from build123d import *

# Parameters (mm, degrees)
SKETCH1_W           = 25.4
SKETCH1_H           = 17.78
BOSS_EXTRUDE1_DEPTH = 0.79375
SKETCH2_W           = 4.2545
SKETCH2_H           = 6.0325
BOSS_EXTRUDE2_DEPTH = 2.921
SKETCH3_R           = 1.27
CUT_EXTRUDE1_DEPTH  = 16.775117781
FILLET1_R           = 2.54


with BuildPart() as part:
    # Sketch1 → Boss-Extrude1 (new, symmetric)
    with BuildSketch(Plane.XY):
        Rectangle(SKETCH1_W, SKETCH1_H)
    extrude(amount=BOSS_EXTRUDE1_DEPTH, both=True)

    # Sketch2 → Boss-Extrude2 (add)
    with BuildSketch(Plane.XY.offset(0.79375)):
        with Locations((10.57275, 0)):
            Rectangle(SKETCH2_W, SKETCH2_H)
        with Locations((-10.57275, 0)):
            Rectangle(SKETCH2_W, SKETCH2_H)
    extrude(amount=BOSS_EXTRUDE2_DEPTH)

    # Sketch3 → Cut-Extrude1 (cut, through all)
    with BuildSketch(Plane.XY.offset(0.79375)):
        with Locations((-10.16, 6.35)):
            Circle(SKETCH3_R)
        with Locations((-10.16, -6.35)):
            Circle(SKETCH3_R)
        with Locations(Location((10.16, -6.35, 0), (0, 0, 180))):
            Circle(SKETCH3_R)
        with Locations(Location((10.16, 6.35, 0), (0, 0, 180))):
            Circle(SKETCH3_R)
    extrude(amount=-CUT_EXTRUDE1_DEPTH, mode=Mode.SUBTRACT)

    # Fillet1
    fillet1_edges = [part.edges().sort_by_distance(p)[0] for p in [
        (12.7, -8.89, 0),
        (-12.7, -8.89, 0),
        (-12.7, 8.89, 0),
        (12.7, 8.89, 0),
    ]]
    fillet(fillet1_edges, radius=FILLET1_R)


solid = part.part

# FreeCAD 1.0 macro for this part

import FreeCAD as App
import Part
import Sketcher
Q = App.Units.Quantity


def edges_at(feature, points):
    """Names of the edges that pass closest to the given points."""
    edges = feature.Shape.Edges
    near = lambda p: min(range(len(edges)), key=lambda i: edges[i].distToShape(Part.Vertex(*p))[0])
    return sorted({f"Edge{near(p) + 1}" for p in points})


def add_polygon(sketch, points):
    """Adds a closed chain of lines whose ends are joined by coincident constraints."""
    first, n = sketch.GeometryCount, len(points)
    for a, b in zip(points, points[1:] + points[:1]):
        sketch.addGeometry(Part.LineSegment(App.Vector(*a, 0), App.Vector(*b, 0)), False)
    for i in range(n):
        sketch.addConstraint(Sketcher.Constraint("Coincident", first + i, 2, first + (i + 1) % n, 1))

doc = App.newDocument("Part")
body = doc.addObject("PartDesign::Body", "Body")

sketch1 = body.newObject("Sketcher::SketchObject", "Sketch")
sketch1.AttachmentSupport = (doc.getObject("XY_Plane"), [""])
sketch1.MapMode = "FlatFace"
add_polygon(sketch1, [(-13, 9), (-13, -9), (13, -9), (13, 9)])
sketch1.addConstraint([
    Sketcher.Constraint("Vertical", 0),
    Sketcher.Constraint("Horizontal", 1),
    Sketcher.Constraint("Vertical", 2),
    Sketcher.Constraint("Horizontal", 3),
    Sketcher.Constraint("Symmetric", 0, 2, 2, 2, -1, 1),
    Sketcher.Constraint("DistanceX", 1, 1, 1, 2, Q("1 in")),
    Sketcher.Constraint("DistanceY", 0, 2, 0, 1, Q("0.7 in")),
])
pad1 = body.newObject("PartDesign::Pad", "Pad")
pad1.Profile = sketch1
pad1.Length = Q("0.0625 in")
pad1.Midplane = True

sketch2 = body.newObject("Sketcher::SketchObject", "Sketch001")
sketch2.AttachmentSupport = (doc.getObject("XY_Plane"), [""])
sketch2.MapMode = "FlatFace"
sketch2.AttachmentOffset = App.Placement(App.Vector(0, 0, 0.03125 * 25.4), App.Rotation())
add_polygon(sketch2, [(8.4, 3), (8.4, -3), (12.7, -3), (12.7, 3)])
add_polygon(sketch2, [(-12.7, 3), (-12.7, -3), (-8.4, -3), (-8.4, 3)])
sketch2.addConstraint([
    Sketcher.Constraint("Vertical", 0),
    Sketcher.Constraint("Horizontal", 1),
    Sketcher.Constraint("Vertical", 2),
    Sketcher.Constraint("Horizontal", 3),
    Sketcher.Constraint("Vertical", 4),
    Sketcher.Constraint("Horizontal", 5),
    Sketcher.Constraint("Vertical", 6),
    Sketcher.Constraint("Horizontal", 7),
    Sketcher.Constraint("Symmetric", 2, 2, 4, 2, -1, 1),
    Sketcher.Constraint("Symmetric", 0, 2, 6, 2, -1, 1),
    Sketcher.Constraint("Horizontal", 1, 2, 4, 2),
    Sketcher.Constraint("DistanceX", 4, 2, 1, 2, Q("1 in")),
    Sketcher.Constraint("DistanceX", 1, 1, 1, 2, Q("0.1675 in")),
    Sketcher.Constraint("DistanceY", 0, 2, 0, 1, Q("0.2375 in")),
])
pad2 = body.newObject("PartDesign::Pad", "Pad001")
pad2.Profile = sketch2
pad2.Length = Q("0.115 in")

sketch3 = body.newObject("Sketcher::SketchObject", "Sketch002")
sketch3.AttachmentSupport = (doc.getObject("XY_Plane"), [""])
sketch3.MapMode = "FlatFace"
sketch3.AttachmentOffset = App.Placement(App.Vector(0, 0, 0.03125 * 25.4), App.Rotation())
sketch3.addGeometry([
    Part.Circle(App.Vector(-10.2, 6.3, 0), App.Vector(0, 0, 1), 1.3),
    Part.Circle(App.Vector(-10.2, -6.3, 0), App.Vector(0, 0, 1), 1.3),
    Part.Circle(App.Vector(10.2, -6.3, 0), App.Vector(0, 0, 1), 1.3),
    Part.Circle(App.Vector(10.2, 6.3, 0), App.Vector(0, 0, 1), 1.3),
], False)
sketch3.addConstraint([
    Sketcher.Constraint("Equal", 0, 1),
    Sketcher.Constraint("Equal", 1, 2),
    Sketcher.Constraint("Equal", 2, 3),
    Sketcher.Constraint("Symmetric", 0, 3, 2, 3, -1, 1),
    Sketcher.Constraint("Symmetric", 1, 3, 3, 3, -1, 1),
    Sketcher.Constraint("Symmetric", 1, 3, 2, 3, -2),
    Sketcher.Constraint("Diameter", 0, Q("0.1 in")),
    Sketcher.Constraint("DistanceX", 0, 3, -1, 1, Q("0.4 in")),
    Sketcher.Constraint("DistanceY", 1, 3, 0, 3, Q("0.5 in")),
])
pocket1 = body.newObject("PartDesign::Pocket", "Pocket")
pocket1.Profile = sketch3
pocket1.Type = "ThroughAll"
doc.recompute()

fillet = body.newObject("PartDesign::Fillet", "Fillet")
fillet.Base = (pocket1, edges_at(pocket1, [
    (12.7, -8.89, 0),
    (-12.7, -8.89, 0),
    (-12.7, 8.89, 0),
    (12.7, 8.89, 0),
]))
fillet.Radius = Q("0.1 in")

doc.recompute()
